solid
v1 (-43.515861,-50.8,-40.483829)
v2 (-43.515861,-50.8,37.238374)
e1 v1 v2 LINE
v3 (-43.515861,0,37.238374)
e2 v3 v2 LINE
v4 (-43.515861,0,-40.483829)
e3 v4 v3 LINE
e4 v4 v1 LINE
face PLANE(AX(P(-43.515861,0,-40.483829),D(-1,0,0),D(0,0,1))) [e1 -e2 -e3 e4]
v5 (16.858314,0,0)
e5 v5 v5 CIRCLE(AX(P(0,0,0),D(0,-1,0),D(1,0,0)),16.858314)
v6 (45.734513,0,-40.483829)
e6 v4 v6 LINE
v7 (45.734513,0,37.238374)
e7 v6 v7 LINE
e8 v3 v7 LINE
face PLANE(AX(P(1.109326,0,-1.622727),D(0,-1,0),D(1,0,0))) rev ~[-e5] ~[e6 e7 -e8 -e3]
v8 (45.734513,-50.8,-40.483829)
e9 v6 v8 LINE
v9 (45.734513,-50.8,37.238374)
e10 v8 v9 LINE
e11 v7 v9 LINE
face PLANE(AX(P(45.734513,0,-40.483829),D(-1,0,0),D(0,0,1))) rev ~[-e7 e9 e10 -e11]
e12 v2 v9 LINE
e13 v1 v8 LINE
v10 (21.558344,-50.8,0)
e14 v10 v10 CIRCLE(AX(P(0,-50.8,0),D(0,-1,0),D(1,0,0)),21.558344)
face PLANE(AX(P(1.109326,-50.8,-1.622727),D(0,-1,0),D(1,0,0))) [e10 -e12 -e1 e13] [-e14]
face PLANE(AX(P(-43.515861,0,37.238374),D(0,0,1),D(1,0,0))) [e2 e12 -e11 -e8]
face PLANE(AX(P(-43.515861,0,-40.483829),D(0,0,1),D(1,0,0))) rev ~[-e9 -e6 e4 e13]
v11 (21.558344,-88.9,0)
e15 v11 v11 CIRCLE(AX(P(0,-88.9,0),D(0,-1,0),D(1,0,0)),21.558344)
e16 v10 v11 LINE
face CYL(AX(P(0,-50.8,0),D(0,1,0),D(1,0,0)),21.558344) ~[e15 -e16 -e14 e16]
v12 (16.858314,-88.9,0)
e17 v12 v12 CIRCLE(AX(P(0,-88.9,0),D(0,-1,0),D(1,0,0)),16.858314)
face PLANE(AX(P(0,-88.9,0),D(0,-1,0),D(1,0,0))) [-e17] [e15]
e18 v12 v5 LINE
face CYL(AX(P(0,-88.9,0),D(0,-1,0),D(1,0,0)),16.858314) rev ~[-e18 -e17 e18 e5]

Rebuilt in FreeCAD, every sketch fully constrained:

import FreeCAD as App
import Part
import Sketcher
from FreeCAD import Vector
Q = App.Units.Quantity


def add_polygon(sketch, points):
    """Adds a closed chain of lines whose ends are joined by coincident constraints."""
    first, n = sketch.GeometryCount, len(points)
    for a, b in zip(points, points[1:] + points[:1]):
        sketch.addGeometry(Part.LineSegment(App.Vector(*a, 0), App.Vector(*b, 0)), False)
    for i in range(n):
        sketch.addConstraint(Sketcher.Constraint("Coincident", first + i, 2, first + (i + 1) % n, 1))

doc = App.newDocument("Part")
body = doc.addObject("PartDesign::Body", "Body")

# Sketch on XZ plane
sketch1 = body.newObject("Sketcher::SketchObject", "Sketch")
sketch1.AttachmentSupport = (doc.getObject("XZ_Plane"), [""])
sketch1.MapMode = "FlatFace"
add_polygon(sketch1, [(-43.515861, 37.238374), (-43.515861, -40.483829), (45.734513, -40.483829), (45.734513, 37.238374)])  # lines 0-3
sketch1.addConstraint([
    Sketcher.Constraint("Vertical", 0),
    Sketcher.Constraint("Horizontal", 1),
    Sketcher.Constraint("Vertical", 2),
    Sketcher.Constraint("Horizontal", 3),
    Sketcher.Constraint("DistanceX", 1, 1, 1, 2, 89.250375),
    Sketcher.Constraint("DistanceY", 0, 2, 0, 1, 77.722203),
    Sketcher.Constraint("DistanceX", 0, 2, -1, 1, 43.515861),
    Sketcher.Constraint("DistanceY", 0, 2, -1, 1, 40.483829),
])
pad1 = body.newObject("PartDesign::Pad", "Pad")
pad1.Profile = sketch1
pad1.Length = Q("2 in")

# Sketch on XZ plane
sketch2 = body.newObject("Sketcher::SketchObject", "Sketch001")
sketch2.AttachmentSupport = (doc.getObject("XZ_Plane"), [""])
sketch2.MapMode = "FlatFace"
sketch2.AttachmentOffset = App.Placement(Vector(0, 0, 2 * 25.4), App.Rotation())
sketch2.addGeometry(Part.Circle(Vector(0, 0, 0), Vector(0, 0, 1), 21.558344), False)
sketch2.addConstraint([
    Sketcher.Constraint("Coincident", 0, 3, -1, 1),
    Sketcher.Constraint("Diameter", 0, 43.116688),
])
pad2 = body.newObject("PartDesign::Pad", "Pad001")
pad2.Profile = sketch2
pad2.Length = Q("1.5 in")

# Sketch on XZ plane
sketch3 = body.newObject("Sketcher::SketchObject", "Sketch002")
sketch3.AttachmentSupport = (doc.getObject("XZ_Plane"), [""])
sketch3.MapMode = "FlatFace"
sketch3.AttachmentOffset = App.Placement(Vector(0, 0, 3.5 * 25.4), App.Rotation())
sketch3.addGeometry(Part.Circle(Vector(0, 0, 0), Vector(0, 0, 1), 16.858314), False)
sketch3.addConstraint([
    Sketcher.Constraint("Coincident", 0, 3, -1, 1),
    Sketcher.Constraint("Diameter", 0, 33.716628),
])
pocket1 = body.newObject("PartDesign::Pocket", "Pocket")
pocket1.Profile = sketch3
pocket1.Length = Q("5 in")

doc.recompute()
